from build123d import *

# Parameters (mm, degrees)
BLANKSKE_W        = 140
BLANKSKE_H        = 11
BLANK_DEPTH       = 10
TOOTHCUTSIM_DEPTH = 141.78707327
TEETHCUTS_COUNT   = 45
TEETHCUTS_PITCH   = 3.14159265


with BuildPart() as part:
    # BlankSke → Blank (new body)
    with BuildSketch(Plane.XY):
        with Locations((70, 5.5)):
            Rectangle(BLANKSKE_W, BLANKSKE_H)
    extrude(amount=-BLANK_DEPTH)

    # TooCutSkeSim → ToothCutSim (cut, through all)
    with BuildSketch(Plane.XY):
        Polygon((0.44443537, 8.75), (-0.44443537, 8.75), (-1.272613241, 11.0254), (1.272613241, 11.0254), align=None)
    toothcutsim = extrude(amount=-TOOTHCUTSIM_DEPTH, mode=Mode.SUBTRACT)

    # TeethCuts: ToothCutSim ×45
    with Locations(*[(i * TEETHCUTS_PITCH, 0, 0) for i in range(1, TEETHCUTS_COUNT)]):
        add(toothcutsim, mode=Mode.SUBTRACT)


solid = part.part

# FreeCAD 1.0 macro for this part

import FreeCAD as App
import Part
import Sketcher
from FreeCAD import Vector
Q = App.Units.Quantity


def add_polygon(sketch, points):
    """Adds a closed chain of lines whose ends are joined by coincident constraints."""
    first, n = sketch.GeometryCount, len(points)
    for a, b in zip(points, points[1:] + points[:1]):
        sketch.addGeometry(Part.LineSegment(App.Vector(*a, 0), App.Vector(*b, 0)), False)
    for i in range(n):
        sketch.addConstraint(Sketcher.Constraint("Coincident", first + i, 2, first + (i + 1) % n, 1))

doc = App.newDocument("Part")
body = doc.addObject("PartDesign::Body", "Body")

# Sketch on XY plane
sketch1 = doc.addObject("Sketcher::SketchObject", "Sketch")
body.addObject(sketch1)
sketch1.AttachmentSupport = (doc.XY_Plane, [""])
sketch1.MapMode = "FlatFace"
add_polygon(sketch1, [(0, 11), (0, 0), (140, 0), (140, 11)])  # lines 0-3
sketch1.addConstraint(Sketcher.Constraint("Vertical", 0))
sketch1.addConstraint(Sketcher.Constraint("Horizontal", 1))
sketch1.addConstraint(Sketcher.Constraint("Vertical", 2))
sketch1.addConstraint(Sketcher.Constraint("Horizontal", 3))
sketch1.addConstraint(Sketcher.Constraint("Coincident", 0, 2, -1, 1))
sketch1.addConstraint(Sketcher.Constraint("DistanceX", 1, 1, 1, 2, Q("140 mm")))
sketch1.addConstraint(Sketcher.Constraint("DistanceY", 0, 2, 0, 1, Q("11 mm")))
pad1 = doc.addObject("PartDesign::Pad", "Pad")
body.addObject(pad1)
pad1.Profile = sketch1
pad1.Length = 10
pad1.Reversed = True

# Sketch on XY plane
sketch2 = doc.addObject("Sketcher::SketchObject", "Sketch001")
body.addObject(sketch2)
sketch2.AttachmentSupport = (doc.XY_Plane, [""])
sketch2.MapMode = "FlatFace"
add_polygon(sketch2, [(-0.4, 8.8), (0.4, 8.8), (1.3, 11), (-1.3, 11)])  # lines 0-3
sketch2.addConstraint(Sketcher.Constraint("Horizontal", 0))
sketch2.addConstraint(Sketcher.Constraint("Horizontal", 2))
sketch2.addConstraint(Sketcher.Constraint("Equal", 1, 3))
sketch2.addConstraint(Sketcher.Constraint("Angle", 1, Q("70 deg")))
sketch2.addConstraint(Sketcher.Constraint("DistanceY", -1, 1, 0, 2, Q("8.75 mm")))
sketch2.addConstraint(Sketcher.Constraint("DistanceX", 0, 1, 0, 2, Q("0.888871 mm")))
sketch2.addConstraint(Sketcher.Constraint("DistanceY", -1, 1, 1, 2, Q("11.0254 mm")))
sketch2.addConstraint(Sketcher.Constraint("DistanceX", -1, 1, 0, 2, Q("0.444435 mm")))
pocket1 = doc.addObject("PartDesign::Pocket", "Pocket")
body.addObject(pocket1)
pocket1.Profile = sketch2
pocket1.Type = "ThroughAll"
doc.recompute()

linearpattern = doc.addObject("PartDesign::LinearPattern", "LinearPattern")
body.addObject(linearpattern)
linearpattern.Originals = [pocket1]
linearpattern.Direction = (doc.X_Axis, [""])
linearpattern.Mode = "offset"
linearpattern.Offset = 3.141593
linearpattern.Occurrences = 45
body.Tip = linearpattern

doc.recompute()
